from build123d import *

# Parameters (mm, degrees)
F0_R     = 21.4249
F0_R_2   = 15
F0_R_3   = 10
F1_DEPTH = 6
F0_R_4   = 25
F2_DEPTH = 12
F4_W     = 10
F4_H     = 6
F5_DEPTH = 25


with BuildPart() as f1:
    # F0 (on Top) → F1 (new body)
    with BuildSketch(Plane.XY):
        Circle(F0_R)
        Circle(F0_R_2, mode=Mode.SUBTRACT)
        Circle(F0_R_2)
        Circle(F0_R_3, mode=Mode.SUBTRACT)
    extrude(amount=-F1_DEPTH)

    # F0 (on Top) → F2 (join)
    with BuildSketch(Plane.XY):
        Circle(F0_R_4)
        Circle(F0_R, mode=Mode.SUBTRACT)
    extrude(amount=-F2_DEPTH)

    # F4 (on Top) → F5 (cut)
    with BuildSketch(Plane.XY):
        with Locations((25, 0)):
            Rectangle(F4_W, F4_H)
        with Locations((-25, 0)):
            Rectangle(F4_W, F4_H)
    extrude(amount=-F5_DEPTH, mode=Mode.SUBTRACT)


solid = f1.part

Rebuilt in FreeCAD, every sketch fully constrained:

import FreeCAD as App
import Part
import Sketcher
Q = App.Units.Quantity


def add_polygon(sketch, points):
    """Adds a closed chain of lines whose ends are joined by coincident constraints."""
    first, n = sketch.GeometryCount, len(points)
    for a, b in zip(points, points[1:] + points[:1]):
        sketch.addGeometry(Part.LineSegment(App.Vector(*a, 0), App.Vector(*b, 0)), False)
    for i in range(n):
        sketch.addConstraint(Sketcher.Constraint("Coincident", first + i, 2, first + (i + 1) % n, 1))

doc = App.newDocument("Part")
body = doc.addObject("PartDesign::Body", "Body")

sketch1 = body.newObject("Sketcher::SketchObject", "Sketch")
sketch1.AttachmentSupport = (doc.getObject("XY_Plane"), [""])
sketch1.MapMode = "FlatFace"
sketch1.addGeometry([
    Part.Circle(App.Vector(0, 0, 0), App.Vector(0, 0, 1), 21),
    Part.Circle(App.Vector(0, 0, 0), App.Vector(0, 0, 1), 10),
], False)
sketch1.addConstraint([
    Sketcher.Constraint("Coincident", 0, 3, -1, 1),
    Sketcher.Constraint("Coincident", 1, 3, -1, 1),
    Sketcher.Constraint("Diameter", 1, Q("20 mm")),
    Sketcher.Constraint("Diameter", 0, Q("42.8498 mm")),
])
pad1 = body.newObject("PartDesign::Pad", "Pad")
pad1.Profile = sketch1
pad1.Length = 6
pad1.Reversed = True

sketch2 = body.newObject("Sketcher::SketchObject", "Sketch001")
sketch2.AttachmentSupport = (doc.getObject("XY_Plane"), [""])
sketch2.MapMode = "FlatFace"
sketch2.addGeometry([
    Part.Circle(App.Vector(0, 0, 0), App.Vector(0, 0, 1), 25),
    Part.Circle(App.Vector(0, 0, 0), App.Vector(0, 0, 1), 21),
], False)
sketch2.addConstraint([
    Sketcher.Constraint("Coincident", 0, 3, -1, 1),
    Sketcher.Constraint("Coincident", 1, 3, -1, 1),
    Sketcher.Constraint("Diameter", 0, Q("50 mm")),
    Sketcher.Constraint("Diameter", 1, Q("42.8498 mm")),
])
pad2 = body.newObject("PartDesign::Pad", "Pad001")
pad2.Profile = sketch2
pad2.Length = 12
pad2.Reversed = True

sketch3 = body.newObject("Sketcher::SketchObject", "Sketch002")
sketch3.AttachmentSupport = (doc.getObject("XY_Plane"), [""])
sketch3.MapMode = "FlatFace"
add_polygon(sketch3, [(20, 3), (20, -3), (30, -3), (30, 3)])
add_polygon(sketch3, [(-30, 3), (-30, -3), (-20, -3), (-20, 3)])
sketch3.addConstraint([
    Sketcher.Constraint("Vertical", 0),
    Sketcher.Constraint("Horizontal", 1),
    Sketcher.Constraint("Vertical", 2),
    Sketcher.Constraint("Horizontal", 3),
    Sketcher.Constraint("Vertical", 4),
    Sketcher.Constraint("Horizontal", 5),
    Sketcher.Constraint("Vertical", 6),
    Sketcher.Constraint("Horizontal", 7),
    Sketcher.Constraint("Symmetric", 2, 2, 4, 2, -1, 1),
    Sketcher.Constraint("Symmetric", 0, 2, 6, 2, -1, 1),
    Sketcher.Constraint("Horizontal", 1, 2, 4, 2),
    Sketcher.Constraint("DistanceX", 1, 1, 1, 2, Q("10 mm")),
    Sketcher.Constraint("DistanceY", 0, 2, 0, 1, Q("6 mm")),
    Sketcher.Constraint("DistanceX", -1, 1, 0, 2, Q("20 mm")),
])
pocket1 = body.newObject("PartDesign::Pocket", "Pocket")
pocket1.Profile = sketch3
pocket1.Length = 25

doc.recompute()
